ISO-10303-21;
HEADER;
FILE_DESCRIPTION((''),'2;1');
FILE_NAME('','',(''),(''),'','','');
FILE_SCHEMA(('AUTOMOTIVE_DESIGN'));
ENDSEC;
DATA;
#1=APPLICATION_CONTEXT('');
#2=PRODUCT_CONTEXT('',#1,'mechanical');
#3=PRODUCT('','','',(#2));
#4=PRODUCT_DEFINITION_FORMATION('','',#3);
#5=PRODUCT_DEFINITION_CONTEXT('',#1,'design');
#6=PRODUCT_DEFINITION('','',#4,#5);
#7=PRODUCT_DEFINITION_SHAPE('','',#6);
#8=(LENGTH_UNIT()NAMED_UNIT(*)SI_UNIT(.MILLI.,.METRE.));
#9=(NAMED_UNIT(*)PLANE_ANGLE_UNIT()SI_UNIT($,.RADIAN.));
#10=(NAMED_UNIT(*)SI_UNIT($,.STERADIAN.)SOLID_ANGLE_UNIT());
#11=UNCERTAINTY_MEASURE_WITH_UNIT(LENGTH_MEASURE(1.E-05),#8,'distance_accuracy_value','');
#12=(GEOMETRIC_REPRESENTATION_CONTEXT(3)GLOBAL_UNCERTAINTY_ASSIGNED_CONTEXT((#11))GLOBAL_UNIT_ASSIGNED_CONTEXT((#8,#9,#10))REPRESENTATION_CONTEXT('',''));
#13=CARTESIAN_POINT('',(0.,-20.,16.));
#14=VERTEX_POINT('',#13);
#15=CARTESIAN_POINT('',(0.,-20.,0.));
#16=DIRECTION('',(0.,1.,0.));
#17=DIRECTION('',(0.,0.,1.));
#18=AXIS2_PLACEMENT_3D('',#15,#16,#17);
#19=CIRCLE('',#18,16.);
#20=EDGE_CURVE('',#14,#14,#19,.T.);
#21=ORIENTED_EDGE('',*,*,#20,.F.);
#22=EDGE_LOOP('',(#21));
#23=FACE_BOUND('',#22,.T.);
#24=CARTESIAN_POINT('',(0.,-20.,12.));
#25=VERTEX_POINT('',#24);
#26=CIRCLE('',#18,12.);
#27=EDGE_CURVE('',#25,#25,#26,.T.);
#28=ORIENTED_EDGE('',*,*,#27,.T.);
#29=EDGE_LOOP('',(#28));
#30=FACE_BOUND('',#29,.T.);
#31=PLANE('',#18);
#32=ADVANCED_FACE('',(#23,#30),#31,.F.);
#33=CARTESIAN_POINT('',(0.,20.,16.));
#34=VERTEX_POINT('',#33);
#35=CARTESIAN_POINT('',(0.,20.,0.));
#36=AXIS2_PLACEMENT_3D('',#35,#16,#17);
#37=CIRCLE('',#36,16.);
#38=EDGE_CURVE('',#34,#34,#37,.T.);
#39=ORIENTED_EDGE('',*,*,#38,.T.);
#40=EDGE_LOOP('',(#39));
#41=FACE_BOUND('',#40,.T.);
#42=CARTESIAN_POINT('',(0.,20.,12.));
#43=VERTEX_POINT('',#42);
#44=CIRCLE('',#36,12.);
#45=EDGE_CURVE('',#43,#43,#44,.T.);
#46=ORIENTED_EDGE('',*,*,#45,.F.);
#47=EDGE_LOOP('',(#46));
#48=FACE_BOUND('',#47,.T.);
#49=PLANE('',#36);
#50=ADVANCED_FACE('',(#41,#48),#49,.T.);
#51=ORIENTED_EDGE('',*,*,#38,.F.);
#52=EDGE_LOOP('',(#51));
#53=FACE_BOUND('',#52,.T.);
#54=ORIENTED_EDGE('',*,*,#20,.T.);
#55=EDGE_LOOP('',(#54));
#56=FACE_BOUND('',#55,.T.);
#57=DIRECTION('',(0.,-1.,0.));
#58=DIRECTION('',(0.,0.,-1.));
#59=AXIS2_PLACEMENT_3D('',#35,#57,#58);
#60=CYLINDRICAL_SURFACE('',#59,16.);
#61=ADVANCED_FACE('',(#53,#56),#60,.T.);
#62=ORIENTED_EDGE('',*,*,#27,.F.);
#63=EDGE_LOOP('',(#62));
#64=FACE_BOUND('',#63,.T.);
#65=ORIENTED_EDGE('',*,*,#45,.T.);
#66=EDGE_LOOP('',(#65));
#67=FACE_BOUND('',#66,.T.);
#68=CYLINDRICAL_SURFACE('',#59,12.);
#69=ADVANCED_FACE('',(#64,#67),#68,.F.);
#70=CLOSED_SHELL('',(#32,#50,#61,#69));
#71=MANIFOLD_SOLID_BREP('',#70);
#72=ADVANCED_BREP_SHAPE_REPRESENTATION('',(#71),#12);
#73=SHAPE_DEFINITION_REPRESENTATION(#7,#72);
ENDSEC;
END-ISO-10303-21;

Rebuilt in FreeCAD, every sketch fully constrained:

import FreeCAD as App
import Part
import Sketcher
Q = App.Units.Quantity

doc = App.newDocument("Part")
body = doc.addObject("PartDesign::Body", "Body")

sketch1 = body.newObject("Sketcher::SketchObject", "Sketch")
sketch1.AttachmentSupport = (doc.getObject("XZ_Plane"), [""])
sketch1.MapMode = "FlatFace"
sketch1.addGeometry([
    Part.Circle(App.Vector(0, 0, 0), App.Vector(0, 0, 1), 16),
    Part.Circle(App.Vector(0, 0, 0), App.Vector(0, 0, 1), 12),
], False)
sketch1.addConstraint([
    Sketcher.Constraint("Coincident", 0, 3, -1, 1),
    Sketcher.Constraint("Coincident", 1, 3, -1, 1),
    Sketcher.Constraint("Diameter", 0, Q("32 mm")),
    Sketcher.Constraint("Diameter", 1, Q("24 mm")),
])
pad1 = body.newObject("PartDesign::Pad", "Pad")
pad1.Profile = sketch1
pad1.Length = 40
pad1.Midplane = True

doc.recompute()
